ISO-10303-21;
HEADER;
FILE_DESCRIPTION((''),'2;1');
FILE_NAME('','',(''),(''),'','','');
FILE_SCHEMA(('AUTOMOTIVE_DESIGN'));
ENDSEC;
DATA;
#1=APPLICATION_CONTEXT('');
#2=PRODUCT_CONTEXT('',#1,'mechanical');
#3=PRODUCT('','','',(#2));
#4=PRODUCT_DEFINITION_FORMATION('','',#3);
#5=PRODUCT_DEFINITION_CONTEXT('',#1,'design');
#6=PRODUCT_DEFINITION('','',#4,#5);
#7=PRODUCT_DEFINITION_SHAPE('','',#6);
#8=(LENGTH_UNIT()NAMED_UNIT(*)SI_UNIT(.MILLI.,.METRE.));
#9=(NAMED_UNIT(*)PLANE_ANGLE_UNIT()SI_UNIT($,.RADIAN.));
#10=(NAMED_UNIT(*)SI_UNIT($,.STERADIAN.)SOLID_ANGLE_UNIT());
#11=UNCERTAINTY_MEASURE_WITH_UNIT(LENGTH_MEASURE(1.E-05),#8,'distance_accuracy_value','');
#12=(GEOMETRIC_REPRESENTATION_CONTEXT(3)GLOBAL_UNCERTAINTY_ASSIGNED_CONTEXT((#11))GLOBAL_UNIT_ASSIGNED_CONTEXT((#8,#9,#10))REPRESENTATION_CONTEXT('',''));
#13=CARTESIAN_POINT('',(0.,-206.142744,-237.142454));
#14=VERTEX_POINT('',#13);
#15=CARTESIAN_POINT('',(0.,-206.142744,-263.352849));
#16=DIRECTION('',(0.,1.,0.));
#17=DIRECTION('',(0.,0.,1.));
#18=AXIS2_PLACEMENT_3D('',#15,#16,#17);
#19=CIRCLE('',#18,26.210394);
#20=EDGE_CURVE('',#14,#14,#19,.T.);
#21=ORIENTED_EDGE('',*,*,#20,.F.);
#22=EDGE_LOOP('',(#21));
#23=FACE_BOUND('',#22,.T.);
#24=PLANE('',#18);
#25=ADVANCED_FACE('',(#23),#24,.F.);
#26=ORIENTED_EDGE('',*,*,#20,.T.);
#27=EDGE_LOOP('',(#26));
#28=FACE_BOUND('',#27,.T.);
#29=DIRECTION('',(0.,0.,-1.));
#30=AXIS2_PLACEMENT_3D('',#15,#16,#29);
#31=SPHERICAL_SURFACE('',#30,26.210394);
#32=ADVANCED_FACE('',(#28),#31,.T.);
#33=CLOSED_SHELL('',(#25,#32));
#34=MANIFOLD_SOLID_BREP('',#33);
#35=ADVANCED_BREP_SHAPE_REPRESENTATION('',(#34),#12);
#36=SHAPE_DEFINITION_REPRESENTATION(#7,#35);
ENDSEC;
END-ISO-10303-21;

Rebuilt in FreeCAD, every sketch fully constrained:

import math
import FreeCAD as App
import Part
import Sketcher
from FreeCAD import Vector

doc = App.newDocument("Part")
body = doc.addObject("PartDesign::Body", "Body")

# Sketch on YZ plane
sketch1 = body.newObject("Sketcher::SketchObject", "Sketch")
sketch1.AttachmentSupport = (doc.getObject("YZ_Plane"), [""])
sketch1.MapMode = "FlatFace"
sketch1.addGeometry(Part.LineSegment(Vector(-179.93235, -263.352849, 0), Vector(-206.142744, -263.352849, 0)), False)
sketch1.addGeometry(Part.LineSegment(Vector(-206.142744, -263.352849, 0), Vector(-206.142744, -289.563243, 0)), False)
sketch1.addGeometry(Part.ArcOfCircle(Part.Circle(Vector(-206.142744, -263.352849, 0), Vector(0, 0, 1), 26.210394), math.radians(-90), math.radians(0)), False)
sketch1.addGeometry(Part.LineSegment(Vector(-179.93235, -263.352849, 0), Vector(-206.142744, -263.352849, 0)), True)  # axis
sketch1.addConstraint(Sketcher.Constraint("Coincident", 0, 2, 1, 1))
sketch1.addConstraint(Sketcher.Constraint("Coincident", 1, 2, 2, 1))
sketch1.addConstraint(Sketcher.Constraint("Coincident", 2, 2, 0, 1))
sketch1.addConstraint(Sketcher.Constraint("Horizontal", 0))
sketch1.addConstraint(Sketcher.Constraint("Vertical", 1))
sketch1.addConstraint(Sketcher.Constraint("Horizontal", 3))
sketch1.addConstraint(Sketcher.Constraint("Coincident", 0, 2, 2, 3))
sketch1.addConstraint(Sketcher.Constraint("Coincident", 3, 1, 2, 2))
sketch1.addConstraint(Sketcher.Constraint("Vertical", 1, 2, 3, 2))
sketch1.addConstraint(Sketcher.Constraint("Radius", 2, 26.210394))
sketch1.addConstraint(Sketcher.Constraint("DistanceY", 2, 3, -1, 1, 263.352849))
sketch1.addConstraint(Sketcher.Constraint("DistanceX", 2, 2, -1, 1, 179.93235))
revolution = body.newObject("PartDesign::Revolution", "Revolution")
revolution.Profile = sketch1
revolution.ReferenceAxis = (sketch1, ["Axis0"])
revolution.Angle = 360

doc.recompute()
